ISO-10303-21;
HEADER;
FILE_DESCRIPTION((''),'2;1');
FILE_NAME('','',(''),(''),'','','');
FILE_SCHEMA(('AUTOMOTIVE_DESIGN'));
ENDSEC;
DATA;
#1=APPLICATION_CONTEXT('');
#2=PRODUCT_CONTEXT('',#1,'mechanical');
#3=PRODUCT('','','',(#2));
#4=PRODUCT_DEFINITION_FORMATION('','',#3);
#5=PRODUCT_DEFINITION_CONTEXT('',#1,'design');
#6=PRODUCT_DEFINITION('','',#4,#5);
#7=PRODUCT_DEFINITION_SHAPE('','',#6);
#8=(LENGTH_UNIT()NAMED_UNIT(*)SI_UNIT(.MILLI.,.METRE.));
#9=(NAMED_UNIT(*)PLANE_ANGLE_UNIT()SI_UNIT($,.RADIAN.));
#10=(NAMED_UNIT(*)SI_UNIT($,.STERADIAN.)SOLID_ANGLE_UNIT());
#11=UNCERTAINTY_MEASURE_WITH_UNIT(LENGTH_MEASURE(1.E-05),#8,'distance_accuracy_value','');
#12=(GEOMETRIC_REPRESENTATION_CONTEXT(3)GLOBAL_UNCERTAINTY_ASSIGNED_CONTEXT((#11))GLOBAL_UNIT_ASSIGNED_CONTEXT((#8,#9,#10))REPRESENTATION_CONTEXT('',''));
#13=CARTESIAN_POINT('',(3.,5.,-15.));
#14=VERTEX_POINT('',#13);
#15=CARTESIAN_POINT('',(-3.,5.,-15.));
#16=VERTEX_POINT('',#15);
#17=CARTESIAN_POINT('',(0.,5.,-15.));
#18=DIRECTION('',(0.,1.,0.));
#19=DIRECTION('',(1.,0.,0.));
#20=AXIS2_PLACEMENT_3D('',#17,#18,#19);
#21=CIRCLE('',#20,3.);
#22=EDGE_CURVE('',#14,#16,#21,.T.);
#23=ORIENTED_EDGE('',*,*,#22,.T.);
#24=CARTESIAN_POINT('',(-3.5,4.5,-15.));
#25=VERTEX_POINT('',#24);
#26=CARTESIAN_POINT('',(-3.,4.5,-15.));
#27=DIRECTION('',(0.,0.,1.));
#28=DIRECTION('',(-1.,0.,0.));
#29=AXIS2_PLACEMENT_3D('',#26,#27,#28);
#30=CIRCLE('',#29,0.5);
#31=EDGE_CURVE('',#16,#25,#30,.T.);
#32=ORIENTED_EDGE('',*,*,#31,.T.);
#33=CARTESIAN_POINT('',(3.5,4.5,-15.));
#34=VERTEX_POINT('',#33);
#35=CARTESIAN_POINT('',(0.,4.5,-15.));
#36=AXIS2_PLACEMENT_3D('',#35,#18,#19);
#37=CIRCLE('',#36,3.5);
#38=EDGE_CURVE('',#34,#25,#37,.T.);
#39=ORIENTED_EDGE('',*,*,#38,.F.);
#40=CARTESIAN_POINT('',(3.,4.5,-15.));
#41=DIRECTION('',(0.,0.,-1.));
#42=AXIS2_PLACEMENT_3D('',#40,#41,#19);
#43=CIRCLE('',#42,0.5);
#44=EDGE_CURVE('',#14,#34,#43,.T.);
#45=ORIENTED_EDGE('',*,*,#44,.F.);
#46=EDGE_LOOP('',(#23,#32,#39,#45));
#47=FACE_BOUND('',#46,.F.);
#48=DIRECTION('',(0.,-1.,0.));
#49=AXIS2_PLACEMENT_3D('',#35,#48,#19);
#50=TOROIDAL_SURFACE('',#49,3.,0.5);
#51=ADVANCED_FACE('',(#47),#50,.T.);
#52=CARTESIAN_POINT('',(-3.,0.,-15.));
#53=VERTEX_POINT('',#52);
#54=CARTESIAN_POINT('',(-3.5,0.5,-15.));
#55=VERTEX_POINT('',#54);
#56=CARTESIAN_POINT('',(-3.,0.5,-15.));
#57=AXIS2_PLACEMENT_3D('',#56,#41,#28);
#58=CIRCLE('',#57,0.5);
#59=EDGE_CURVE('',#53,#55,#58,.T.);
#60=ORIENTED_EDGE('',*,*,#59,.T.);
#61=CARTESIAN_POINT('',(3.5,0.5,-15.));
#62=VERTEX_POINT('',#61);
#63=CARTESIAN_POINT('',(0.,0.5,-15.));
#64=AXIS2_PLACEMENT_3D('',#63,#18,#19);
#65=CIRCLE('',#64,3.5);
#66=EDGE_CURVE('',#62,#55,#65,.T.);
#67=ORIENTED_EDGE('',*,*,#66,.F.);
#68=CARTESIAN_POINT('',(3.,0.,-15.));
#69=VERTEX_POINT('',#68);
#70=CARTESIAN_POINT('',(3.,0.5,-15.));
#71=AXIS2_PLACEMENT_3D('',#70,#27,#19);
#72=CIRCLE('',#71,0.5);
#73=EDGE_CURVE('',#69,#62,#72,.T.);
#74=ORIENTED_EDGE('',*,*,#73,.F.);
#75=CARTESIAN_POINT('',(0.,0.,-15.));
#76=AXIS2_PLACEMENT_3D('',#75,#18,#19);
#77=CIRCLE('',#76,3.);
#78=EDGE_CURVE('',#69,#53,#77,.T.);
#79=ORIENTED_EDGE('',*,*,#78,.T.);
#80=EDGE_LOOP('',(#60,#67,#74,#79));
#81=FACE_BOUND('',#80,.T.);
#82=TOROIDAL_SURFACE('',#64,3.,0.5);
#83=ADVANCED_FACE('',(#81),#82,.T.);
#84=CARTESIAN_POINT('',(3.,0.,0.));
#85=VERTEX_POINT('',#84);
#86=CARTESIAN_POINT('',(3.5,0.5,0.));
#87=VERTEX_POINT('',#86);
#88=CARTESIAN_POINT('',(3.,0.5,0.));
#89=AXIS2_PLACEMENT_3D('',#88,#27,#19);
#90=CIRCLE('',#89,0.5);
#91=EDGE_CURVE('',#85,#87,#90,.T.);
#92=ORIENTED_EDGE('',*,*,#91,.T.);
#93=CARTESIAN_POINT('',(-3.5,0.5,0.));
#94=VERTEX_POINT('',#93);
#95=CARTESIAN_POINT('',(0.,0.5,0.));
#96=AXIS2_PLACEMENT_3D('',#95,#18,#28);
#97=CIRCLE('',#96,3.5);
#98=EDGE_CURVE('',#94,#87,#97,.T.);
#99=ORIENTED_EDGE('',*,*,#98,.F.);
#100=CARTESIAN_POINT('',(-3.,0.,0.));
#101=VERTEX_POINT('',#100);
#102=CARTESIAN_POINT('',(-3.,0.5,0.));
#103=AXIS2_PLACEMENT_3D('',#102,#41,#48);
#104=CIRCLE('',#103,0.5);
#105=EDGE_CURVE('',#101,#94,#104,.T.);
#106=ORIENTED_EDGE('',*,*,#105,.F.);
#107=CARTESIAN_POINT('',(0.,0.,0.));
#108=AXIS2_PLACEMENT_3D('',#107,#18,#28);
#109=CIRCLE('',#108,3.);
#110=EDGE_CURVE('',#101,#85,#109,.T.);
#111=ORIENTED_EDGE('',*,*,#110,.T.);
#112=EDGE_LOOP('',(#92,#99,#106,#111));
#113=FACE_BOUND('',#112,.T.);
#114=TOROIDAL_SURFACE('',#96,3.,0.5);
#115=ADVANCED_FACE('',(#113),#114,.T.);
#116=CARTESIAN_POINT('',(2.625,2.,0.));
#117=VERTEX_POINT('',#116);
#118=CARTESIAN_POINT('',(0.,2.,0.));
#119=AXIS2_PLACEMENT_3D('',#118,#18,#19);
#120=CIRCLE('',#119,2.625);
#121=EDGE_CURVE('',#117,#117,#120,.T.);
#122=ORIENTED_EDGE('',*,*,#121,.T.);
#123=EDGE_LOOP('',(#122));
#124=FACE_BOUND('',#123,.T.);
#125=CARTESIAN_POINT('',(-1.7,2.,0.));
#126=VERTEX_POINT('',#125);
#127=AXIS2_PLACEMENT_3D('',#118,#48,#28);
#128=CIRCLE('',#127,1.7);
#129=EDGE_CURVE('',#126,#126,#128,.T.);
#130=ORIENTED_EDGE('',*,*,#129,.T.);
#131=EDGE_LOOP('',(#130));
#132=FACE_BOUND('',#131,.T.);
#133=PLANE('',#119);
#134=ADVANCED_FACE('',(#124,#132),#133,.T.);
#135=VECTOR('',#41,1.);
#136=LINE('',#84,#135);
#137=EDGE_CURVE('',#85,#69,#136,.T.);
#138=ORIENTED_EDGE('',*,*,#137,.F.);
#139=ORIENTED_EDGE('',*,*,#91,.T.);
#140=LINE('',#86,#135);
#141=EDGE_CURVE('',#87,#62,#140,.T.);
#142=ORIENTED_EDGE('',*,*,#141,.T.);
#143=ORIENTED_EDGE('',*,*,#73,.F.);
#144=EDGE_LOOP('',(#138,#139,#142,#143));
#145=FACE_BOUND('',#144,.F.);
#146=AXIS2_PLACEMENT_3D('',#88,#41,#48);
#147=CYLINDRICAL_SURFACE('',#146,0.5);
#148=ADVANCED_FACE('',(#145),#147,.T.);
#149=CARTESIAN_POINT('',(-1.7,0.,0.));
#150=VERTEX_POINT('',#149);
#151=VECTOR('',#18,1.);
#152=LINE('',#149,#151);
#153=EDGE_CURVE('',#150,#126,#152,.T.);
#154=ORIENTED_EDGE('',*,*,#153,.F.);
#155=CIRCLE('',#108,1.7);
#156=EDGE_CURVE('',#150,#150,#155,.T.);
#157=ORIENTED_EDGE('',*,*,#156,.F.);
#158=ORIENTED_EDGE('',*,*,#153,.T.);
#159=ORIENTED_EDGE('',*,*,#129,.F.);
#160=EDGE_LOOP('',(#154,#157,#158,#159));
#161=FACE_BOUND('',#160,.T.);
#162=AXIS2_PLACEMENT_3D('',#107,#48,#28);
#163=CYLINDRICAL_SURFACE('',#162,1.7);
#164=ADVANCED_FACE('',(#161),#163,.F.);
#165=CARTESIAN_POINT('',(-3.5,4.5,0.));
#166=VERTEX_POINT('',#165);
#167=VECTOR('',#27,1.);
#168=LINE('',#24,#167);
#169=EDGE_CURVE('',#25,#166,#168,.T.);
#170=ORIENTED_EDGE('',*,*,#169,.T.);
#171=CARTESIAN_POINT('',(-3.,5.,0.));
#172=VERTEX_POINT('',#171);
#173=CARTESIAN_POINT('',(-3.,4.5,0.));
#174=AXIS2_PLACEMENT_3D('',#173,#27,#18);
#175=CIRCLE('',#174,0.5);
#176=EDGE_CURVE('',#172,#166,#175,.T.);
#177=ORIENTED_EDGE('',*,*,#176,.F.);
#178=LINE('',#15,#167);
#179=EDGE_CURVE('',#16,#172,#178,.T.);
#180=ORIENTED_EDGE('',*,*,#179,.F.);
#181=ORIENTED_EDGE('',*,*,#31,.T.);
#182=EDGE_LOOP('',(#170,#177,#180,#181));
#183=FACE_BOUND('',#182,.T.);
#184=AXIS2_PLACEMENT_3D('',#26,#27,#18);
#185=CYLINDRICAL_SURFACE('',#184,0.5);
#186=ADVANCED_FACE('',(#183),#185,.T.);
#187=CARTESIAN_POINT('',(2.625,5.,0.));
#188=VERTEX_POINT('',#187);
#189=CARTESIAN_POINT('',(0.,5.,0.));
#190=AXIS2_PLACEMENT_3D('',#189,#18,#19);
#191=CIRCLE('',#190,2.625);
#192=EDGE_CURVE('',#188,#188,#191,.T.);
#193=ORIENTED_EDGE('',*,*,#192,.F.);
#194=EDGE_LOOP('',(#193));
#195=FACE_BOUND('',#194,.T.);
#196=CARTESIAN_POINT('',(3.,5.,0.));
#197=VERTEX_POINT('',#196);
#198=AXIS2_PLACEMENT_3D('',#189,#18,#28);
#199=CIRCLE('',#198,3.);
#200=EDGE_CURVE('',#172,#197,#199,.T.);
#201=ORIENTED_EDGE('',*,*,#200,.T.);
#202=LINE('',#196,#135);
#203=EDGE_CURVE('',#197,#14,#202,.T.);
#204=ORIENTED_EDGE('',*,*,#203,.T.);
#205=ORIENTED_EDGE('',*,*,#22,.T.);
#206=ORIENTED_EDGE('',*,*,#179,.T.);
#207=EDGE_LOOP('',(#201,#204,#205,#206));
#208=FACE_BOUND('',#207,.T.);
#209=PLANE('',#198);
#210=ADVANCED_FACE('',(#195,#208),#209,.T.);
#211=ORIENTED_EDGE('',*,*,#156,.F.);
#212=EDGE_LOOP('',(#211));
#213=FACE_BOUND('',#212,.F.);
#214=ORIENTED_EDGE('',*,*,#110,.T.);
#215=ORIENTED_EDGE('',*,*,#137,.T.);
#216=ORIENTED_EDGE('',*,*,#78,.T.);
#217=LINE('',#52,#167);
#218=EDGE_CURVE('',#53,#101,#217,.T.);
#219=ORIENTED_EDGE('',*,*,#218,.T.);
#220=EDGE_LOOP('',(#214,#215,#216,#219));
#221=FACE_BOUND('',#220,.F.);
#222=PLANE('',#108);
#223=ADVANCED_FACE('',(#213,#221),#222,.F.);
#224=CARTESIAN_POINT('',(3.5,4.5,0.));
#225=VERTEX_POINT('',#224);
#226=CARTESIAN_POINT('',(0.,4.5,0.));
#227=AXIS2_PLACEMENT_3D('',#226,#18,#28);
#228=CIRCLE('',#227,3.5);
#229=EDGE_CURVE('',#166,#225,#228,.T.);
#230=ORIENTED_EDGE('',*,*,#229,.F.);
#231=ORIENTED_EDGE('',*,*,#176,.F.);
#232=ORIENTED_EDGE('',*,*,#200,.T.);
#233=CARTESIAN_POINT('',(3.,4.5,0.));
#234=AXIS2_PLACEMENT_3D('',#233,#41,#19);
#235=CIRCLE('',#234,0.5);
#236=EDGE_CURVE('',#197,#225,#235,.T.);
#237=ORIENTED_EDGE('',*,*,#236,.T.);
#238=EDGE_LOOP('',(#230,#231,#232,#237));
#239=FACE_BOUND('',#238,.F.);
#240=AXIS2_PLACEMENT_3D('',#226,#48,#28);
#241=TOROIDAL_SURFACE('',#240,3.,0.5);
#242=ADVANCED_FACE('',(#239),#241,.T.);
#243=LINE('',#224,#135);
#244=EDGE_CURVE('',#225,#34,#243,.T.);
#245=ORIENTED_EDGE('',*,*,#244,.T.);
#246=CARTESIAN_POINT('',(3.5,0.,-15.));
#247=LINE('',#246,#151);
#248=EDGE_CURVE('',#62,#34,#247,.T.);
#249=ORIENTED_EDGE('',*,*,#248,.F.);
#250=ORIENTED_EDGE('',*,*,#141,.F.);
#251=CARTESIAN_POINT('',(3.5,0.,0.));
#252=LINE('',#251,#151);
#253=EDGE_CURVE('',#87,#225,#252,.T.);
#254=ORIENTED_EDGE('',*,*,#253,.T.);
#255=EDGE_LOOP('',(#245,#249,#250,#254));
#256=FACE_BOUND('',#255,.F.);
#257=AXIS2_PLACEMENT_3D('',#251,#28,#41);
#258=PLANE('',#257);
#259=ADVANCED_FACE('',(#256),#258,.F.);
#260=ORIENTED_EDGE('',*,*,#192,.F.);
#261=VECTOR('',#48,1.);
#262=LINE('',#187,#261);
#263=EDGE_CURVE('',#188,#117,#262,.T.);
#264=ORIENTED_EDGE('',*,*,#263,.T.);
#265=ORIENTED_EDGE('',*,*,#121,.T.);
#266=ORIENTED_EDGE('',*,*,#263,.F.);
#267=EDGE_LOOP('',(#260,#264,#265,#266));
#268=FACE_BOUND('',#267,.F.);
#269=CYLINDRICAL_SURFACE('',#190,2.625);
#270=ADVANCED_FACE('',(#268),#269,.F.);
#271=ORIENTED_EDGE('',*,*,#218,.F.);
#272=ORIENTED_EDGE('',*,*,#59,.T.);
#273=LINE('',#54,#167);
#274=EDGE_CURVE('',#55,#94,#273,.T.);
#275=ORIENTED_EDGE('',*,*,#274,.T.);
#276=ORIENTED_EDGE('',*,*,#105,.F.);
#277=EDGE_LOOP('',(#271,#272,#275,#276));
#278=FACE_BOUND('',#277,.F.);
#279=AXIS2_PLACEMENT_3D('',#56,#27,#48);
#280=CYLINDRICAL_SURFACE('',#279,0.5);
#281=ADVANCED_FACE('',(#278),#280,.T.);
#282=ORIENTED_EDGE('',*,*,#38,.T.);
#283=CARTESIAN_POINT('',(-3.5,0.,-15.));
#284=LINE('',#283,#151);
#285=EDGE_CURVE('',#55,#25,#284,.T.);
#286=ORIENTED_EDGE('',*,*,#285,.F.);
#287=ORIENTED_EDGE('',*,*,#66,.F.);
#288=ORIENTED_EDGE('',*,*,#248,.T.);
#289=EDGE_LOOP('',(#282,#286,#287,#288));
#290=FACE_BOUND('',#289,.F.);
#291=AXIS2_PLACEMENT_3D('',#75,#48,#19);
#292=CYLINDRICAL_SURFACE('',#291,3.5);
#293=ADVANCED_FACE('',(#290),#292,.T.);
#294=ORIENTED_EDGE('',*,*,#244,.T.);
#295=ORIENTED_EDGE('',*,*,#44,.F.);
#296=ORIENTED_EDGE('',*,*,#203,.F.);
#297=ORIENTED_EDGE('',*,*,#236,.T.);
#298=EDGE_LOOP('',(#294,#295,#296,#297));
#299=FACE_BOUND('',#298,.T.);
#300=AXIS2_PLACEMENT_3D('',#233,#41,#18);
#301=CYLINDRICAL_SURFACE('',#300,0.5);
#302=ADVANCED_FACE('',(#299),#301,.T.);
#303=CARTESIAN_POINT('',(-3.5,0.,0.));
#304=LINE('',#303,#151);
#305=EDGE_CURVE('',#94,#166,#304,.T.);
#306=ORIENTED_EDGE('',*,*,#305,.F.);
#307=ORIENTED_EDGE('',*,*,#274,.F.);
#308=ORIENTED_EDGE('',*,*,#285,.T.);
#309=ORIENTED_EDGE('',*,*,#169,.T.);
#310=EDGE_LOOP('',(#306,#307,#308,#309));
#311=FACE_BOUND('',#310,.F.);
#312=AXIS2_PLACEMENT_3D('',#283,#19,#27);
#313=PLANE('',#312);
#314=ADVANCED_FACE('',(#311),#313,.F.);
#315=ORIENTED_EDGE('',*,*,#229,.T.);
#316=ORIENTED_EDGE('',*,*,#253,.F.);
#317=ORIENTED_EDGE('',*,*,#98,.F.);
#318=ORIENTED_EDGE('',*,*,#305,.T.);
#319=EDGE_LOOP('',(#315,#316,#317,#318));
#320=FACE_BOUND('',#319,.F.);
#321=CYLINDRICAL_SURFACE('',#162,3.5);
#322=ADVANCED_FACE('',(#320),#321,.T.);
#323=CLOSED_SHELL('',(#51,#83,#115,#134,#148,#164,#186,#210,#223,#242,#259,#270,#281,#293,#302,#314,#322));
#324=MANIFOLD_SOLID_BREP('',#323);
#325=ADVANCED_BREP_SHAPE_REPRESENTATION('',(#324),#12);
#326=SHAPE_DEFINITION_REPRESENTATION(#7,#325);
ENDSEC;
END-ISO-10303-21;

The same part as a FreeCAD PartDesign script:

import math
import FreeCAD as App
import Part
import Sketcher
from FreeCAD import Vector
Q = App.Units.Quantity


def edges_at(feature, points):
    """Names of the edges that pass closest to the given points."""
    edges = feature.Shape.Edges
    near = lambda p: min(range(len(edges)), key=lambda i: edges[i].distToShape(Part.Vertex(*p))[0])
    return sorted({f"Edge{near(p) + 1}" for p in points})

doc = App.newDocument("Part")
body = doc.addObject("PartDesign::Body", "Body")

# Sketch on XZ plane
sketch1 = doc.addObject("Sketcher::SketchObject", "Sketch")
body.addObject(sketch1)
sketch1.AttachmentSupport = (doc.XZ_Plane, [""])
sketch1.MapMode = "FlatFace"
sketch1.addGeometry([
    Part.ArcOfCircle(Part.Circle(Vector(0, 0, 0), Vector(0, 0, 1), 3.5), math.radians(0), math.radians(180)),  # 0
    Part.LineSegment(Vector(3.5, 0, 0), Vector(3.5, -15, 0)),  # 1
    Part.ArcOfCircle(Part.Circle(Vector(0, -15, 0), Vector(0, 0, 1), 3.5), math.radians(180), math.radians(360)),  # 2
    Part.LineSegment(Vector(-3.5, -15, 0), Vector(-3.5, 0, 0)),  # 3
    Part.Circle(Vector(0, 0, 0), Vector(0, 0, 1), 1.7),  # 4
], False)
sketch1.addConstraint([
    Sketcher.Constraint("Tangent", 0, 1, 1, 1),
    Sketcher.Constraint("Tangent", 1, 2, 2, 2),
    Sketcher.Constraint("Tangent", 2, 1, 3, 1),
    Sketcher.Constraint("Tangent", 3, 2, 0, 2),
    Sketcher.Constraint("Vertical", 1),
    Sketcher.Constraint("Vertical", 3),
    Sketcher.Constraint("Coincident", 0, 3, -1, 1),
    Sketcher.Constraint("Coincident", 4, 3, -1, 1),
    Sketcher.Constraint("Diameter", 4, Q("3.4 mm")),
    Sketcher.Constraint("Radius", 0, Q("3.5 mm")),
    Sketcher.Constraint("DistanceY", 1, 2, 1, 1, Q("15 mm")),
])
pad1 = doc.addObject("PartDesign::Pad", "Pad")
body.addObject(pad1)
pad1.Profile = sketch1
pad1.Length = 5
pad1.Reversed = True

# Sketch on XZ plane
sketch2 = doc.addObject("Sketcher::SketchObject", "Sketch001")
body.addObject(sketch2)
sketch2.AttachmentSupport = (doc.XZ_Plane, [""])
sketch2.MapMode = "FlatFace"
sketch2.AttachmentOffset = App.Placement(Vector(0, 0, -5), App.Rotation())
sketch2.addGeometry(Part.Circle(Vector(0, 0, 0), Vector(0, 0, 1), 2.625), False)
sketch2.addConstraint([
    Sketcher.Constraint("Coincident", 0, 3, -1, 1),
    Sketcher.Constraint("Diameter", 0, Q("5.25 mm")),
])
pocket1 = doc.addObject("PartDesign::Pocket", "Pocket")
body.addObject(pocket1)
pocket1.Profile = sketch2
pocket1.Length = 3
pocket1.Reversed = True
doc.recompute()

fillet = doc.addObject("PartDesign::Fillet", "Fillet")
body.addObject(fillet)
fillet.Base = (pocket1, edges_at(pocket1, [
    (0, 0, -18.5),
    (-3.5, 0, -7.5),
    (0, 0, 3.5),
    (3.5, 0, -7.5),
    (0, 5, -18.5),
    (-3.5, 5, -7.5),
    (0, 5, 3.5),
    (3.5, 5, -7.5),
]))
fillet.Radius = 0.5

doc.recompute()
